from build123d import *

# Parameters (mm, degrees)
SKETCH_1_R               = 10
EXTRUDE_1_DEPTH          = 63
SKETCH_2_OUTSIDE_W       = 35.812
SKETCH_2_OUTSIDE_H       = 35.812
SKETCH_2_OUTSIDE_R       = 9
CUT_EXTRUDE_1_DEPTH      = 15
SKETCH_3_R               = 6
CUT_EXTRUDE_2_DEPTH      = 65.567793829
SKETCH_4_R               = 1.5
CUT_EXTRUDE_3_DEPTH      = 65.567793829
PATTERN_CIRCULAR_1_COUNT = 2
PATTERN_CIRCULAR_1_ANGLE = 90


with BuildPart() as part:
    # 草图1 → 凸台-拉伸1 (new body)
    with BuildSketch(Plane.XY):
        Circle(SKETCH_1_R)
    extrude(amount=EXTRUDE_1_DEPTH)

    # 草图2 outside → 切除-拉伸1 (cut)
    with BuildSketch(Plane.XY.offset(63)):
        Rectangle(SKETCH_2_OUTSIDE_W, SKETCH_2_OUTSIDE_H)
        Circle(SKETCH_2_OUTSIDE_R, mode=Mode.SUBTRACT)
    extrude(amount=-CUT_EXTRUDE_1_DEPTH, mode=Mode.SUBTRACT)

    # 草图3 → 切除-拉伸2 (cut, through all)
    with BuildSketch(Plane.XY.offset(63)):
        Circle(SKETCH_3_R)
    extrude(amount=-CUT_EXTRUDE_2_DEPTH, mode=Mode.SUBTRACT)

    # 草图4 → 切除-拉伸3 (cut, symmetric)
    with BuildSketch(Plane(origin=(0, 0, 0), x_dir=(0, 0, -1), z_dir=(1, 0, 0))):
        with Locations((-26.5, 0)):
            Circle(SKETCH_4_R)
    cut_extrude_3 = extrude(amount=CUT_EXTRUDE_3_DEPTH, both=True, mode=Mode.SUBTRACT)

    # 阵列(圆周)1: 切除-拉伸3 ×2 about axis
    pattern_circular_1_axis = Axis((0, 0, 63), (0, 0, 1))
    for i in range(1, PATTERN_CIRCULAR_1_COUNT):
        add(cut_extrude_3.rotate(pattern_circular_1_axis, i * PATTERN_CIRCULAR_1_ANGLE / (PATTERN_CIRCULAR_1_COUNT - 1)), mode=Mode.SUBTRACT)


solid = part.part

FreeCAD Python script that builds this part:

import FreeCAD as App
import Part
import Sketcher

doc = App.newDocument("Part")
body = doc.addObject("PartDesign::Body", "Body")

sketch1 = body.newObject("Sketcher::SketchObject", "Sketch")
sketch1.AttachmentSupport = (doc.getObject("XY_Plane"), [""])
sketch1.MapMode = "FlatFace"
sketch1.addGeometry(Part.Circle(App.Vector(0, 0, 0), App.Vector(0, 0, 1), 10), False)
sketch1.addConstraint(Sketcher.Constraint("Coincident", 0, 3, -1, 1))
sketch1.addConstraint(Sketcher.Constraint("Diameter", 0, 20.0))
pad1 = body.newObject("PartDesign::Pad", "Pad")
pad1.Profile = sketch1
pad1.Length = 63

sketch2 = body.newObject("Sketcher::SketchObject", "Sketch001")
sketch2.AttachmentSupport = (doc.getObject("XY_Plane"), [""])
sketch2.MapMode = "FlatFace"
sketch2.AttachmentOffset = App.Placement(App.Vector(0, 0, 63), App.Rotation())
sketch2.addGeometry(Part.LineSegment(App.Vector(-18, 18, 0), App.Vector(-18, -18, 0)), False)
sketch2.addGeometry(Part.LineSegment(App.Vector(-18, -18, 0), App.Vector(18, -18, 0)), False)
sketch2.addGeometry(Part.LineSegment(App.Vector(18, -18, 0), App.Vector(18, 18, 0)), False)
sketch2.addGeometry(Part.LineSegment(App.Vector(18, 18, 0), App.Vector(-18, 18, 0)), False)
sketch2.addGeometry(Part.Circle(App.Vector(0, 0, 0), App.Vector(0, 0, 1), 9), False)
sketch2.addConstraint(Sketcher.Constraint("Coincident", 0, 2, 1, 1))
sketch2.addConstraint(Sketcher.Constraint("Coincident", 1, 2, 2, 1))
sketch2.addConstraint(Sketcher.Constraint("Coincident", 2, 2, 3, 1))
sketch2.addConstraint(Sketcher.Constraint("Coincident", 3, 2, 0, 1))
sketch2.addConstraint(Sketcher.Constraint("Vertical", 0))
sketch2.addConstraint(Sketcher.Constraint("Horizontal", 1))
sketch2.addConstraint(Sketcher.Constraint("Vertical", 2))
sketch2.addConstraint(Sketcher.Constraint("Horizontal", 3))
sketch2.addConstraint(Sketcher.Constraint("Coincident", 4, 3, -1, 1))
sketch2.addConstraint(Sketcher.Constraint("Symmetric", 0, 2, 2, 2, -1, 1))
sketch2.addConstraint(Sketcher.Constraint("Equal", 3, 0))
sketch2.addConstraint(Sketcher.Constraint("Diameter", 4, 18.0))
sketch2.addConstraint(Sketcher.Constraint("DistanceX", 1, 1, 1, 2, 35.812))
pocket1 = body.newObject("PartDesign::Pocket", "Pocket")
pocket1.Profile = sketch2
pocket1.Length = 15

sketch3 = body.newObject("Sketcher::SketchObject", "Sketch002")
sketch3.AttachmentSupport = (doc.getObject("XY_Plane"), [""])
sketch3.MapMode = "FlatFace"
sketch3.AttachmentOffset = App.Placement(App.Vector(0, 0, 63), App.Rotation())
sketch3.addGeometry(Part.Circle(App.Vector(0, 0, 0), App.Vector(0, 0, 1), 6), False)
sketch3.addConstraint(Sketcher.Constraint("Coincident", 0, 3, -1, 1))
sketch3.addConstraint(Sketcher.Constraint("Diameter", 0, 12.0))
pocket2 = body.newObject("PartDesign::Pocket", "Pocket001")
pocket2.Profile = sketch3
pocket2.Type = "ThroughAll"

sketch4 = body.newObject("Sketcher::SketchObject", "Sketch003")
sketch4.AttachmentSupport = (doc.getObject("YZ_Plane"), [""])
sketch4.MapMode = "FlatFace"
sketch4.addGeometry(Part.Circle(App.Vector(0, 26.5, 0), App.Vector(0, 0, 1), 1.5), False)
sketch4.addConstraint(Sketcher.Constraint("PointOnObject", 0, 3, -2))
sketch4.addConstraint(Sketcher.Constraint("Diameter", 0, 3.0))
sketch4.addConstraint(Sketcher.Constraint("DistanceY", -1, 1, 0, 3, 26.5))
pocket3 = body.newObject("PartDesign::Pocket", "Pocket002")
pocket3.Profile = sketch4
pocket3.Length = 131.135588
pocket3.Midplane = True
doc.recompute()

polarpattern = body.newObject("PartDesign::PolarPattern", "PolarPattern")
polarpattern.Originals = [pocket3]
polarpattern.Axis = (doc.getObject("Z_Axis"), [""])
polarpattern.Angle = 90
polarpattern.Occurrences = 2
body.Tip = polarpattern

doc.recompute()
